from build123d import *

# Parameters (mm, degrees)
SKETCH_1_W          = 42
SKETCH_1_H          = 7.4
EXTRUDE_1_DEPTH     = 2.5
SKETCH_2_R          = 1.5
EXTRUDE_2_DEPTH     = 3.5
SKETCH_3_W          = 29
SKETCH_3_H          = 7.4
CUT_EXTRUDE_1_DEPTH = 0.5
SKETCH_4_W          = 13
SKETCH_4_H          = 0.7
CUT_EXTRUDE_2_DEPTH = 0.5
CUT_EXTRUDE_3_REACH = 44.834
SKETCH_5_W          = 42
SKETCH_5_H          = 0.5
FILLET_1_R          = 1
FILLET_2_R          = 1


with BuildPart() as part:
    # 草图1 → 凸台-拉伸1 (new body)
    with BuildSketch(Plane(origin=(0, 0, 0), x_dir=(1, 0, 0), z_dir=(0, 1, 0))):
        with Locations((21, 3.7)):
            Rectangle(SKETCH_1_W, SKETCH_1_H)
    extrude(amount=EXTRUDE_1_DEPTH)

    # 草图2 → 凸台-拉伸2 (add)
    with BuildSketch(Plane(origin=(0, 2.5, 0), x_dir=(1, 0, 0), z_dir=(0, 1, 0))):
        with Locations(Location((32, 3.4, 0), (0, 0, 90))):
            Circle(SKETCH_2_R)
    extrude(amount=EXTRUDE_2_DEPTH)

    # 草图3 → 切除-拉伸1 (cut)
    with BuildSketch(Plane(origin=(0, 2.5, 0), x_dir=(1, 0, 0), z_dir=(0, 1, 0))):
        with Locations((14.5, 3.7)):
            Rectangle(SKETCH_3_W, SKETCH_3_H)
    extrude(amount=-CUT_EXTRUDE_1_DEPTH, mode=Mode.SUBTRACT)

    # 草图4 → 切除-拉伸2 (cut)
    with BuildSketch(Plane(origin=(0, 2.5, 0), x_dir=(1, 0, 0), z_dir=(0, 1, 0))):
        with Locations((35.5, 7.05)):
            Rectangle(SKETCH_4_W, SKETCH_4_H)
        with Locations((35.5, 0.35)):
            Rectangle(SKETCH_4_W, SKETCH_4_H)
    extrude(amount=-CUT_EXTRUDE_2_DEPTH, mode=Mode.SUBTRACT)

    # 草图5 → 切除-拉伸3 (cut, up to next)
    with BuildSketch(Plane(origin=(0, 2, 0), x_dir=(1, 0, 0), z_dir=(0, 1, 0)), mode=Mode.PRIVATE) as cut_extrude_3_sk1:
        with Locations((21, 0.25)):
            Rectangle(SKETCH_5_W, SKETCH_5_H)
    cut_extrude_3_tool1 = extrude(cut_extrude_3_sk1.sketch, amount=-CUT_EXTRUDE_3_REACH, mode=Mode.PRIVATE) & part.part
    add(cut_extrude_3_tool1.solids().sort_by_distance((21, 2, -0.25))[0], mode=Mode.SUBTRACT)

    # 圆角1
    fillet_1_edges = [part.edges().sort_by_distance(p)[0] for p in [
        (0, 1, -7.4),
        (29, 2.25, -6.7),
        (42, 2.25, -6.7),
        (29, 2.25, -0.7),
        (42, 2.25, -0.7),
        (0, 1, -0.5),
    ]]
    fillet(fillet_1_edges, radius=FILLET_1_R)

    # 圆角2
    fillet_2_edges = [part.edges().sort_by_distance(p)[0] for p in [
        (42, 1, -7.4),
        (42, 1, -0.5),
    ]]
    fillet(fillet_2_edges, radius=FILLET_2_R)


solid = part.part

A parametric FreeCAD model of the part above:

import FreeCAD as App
import Part
import Sketcher
from FreeCAD import Vector


def edges_at(feature, points):
    """Names of the edges that pass closest to the given points."""
    edges = feature.Shape.Edges
    near = lambda p: min(range(len(edges)), key=lambda i: edges[i].distToShape(Part.Vertex(*p))[0])
    return sorted({f"Edge{near(p) + 1}" for p in points})

doc = App.newDocument("Part")
body = doc.addObject("PartDesign::Body", "Body")

# Sketch on XZ plane
sketch1 = doc.addObject("Sketcher::SketchObject", "Sketch")
body.addObject(sketch1)
sketch1.AttachmentSupport = (doc.XZ_Plane, [""])
sketch1.MapMode = "FlatFace"
sketch1.addGeometry([
    Part.LineSegment(Vector(0, -7, 0), Vector(0, 0, 0)),
    Part.LineSegment(Vector(0, 0, 0), Vector(42, 0, 0)),
    Part.LineSegment(Vector(42, 0, 0), Vector(42, -7, 0)),
    Part.LineSegment(Vector(42, -7, 0), Vector(0, -7, 0)),
], False)
sketch1.addConstraint([
    Sketcher.Constraint("Coincident", 0, 2, 1, 1),
    Sketcher.Constraint("Coincident", 1, 2, 2, 1),
    Sketcher.Constraint("Coincident", 2, 2, 3, 1),
    Sketcher.Constraint("Coincident", 3, 2, 0, 1),
    Sketcher.Constraint("Vertical", 0),
    Sketcher.Constraint("Horizontal", 1),
    Sketcher.Constraint("Vertical", 2),
    Sketcher.Constraint("Horizontal", 3),
    Sketcher.Constraint("Coincident", 0, 2, -1, 1),
    Sketcher.Constraint("DistanceX", 1, 1, 1, 2, 42.0),
    Sketcher.Constraint("DistanceY", 0, 1, 0, 2, 7.4),
])
pad1 = doc.addObject("PartDesign::Pad", "Pad")
body.addObject(pad1)
pad1.Profile = sketch1
pad1.Length = 2.5
pad1.Reversed = True

# Sketch on XZ plane
sketch2 = doc.addObject("Sketcher::SketchObject", "Sketch001")
body.addObject(sketch2)
sketch2.AttachmentSupport = (doc.XZ_Plane, [""])
sketch2.MapMode = "FlatFace"
sketch2.AttachmentOffset = App.Placement(Vector(0, 0, -2.5), App.Rotation())
sketch2.addGeometry(Part.Circle(Vector(32, -3.4, 0), Vector(0, 0, 1), 1.5), False)
sketch2.addConstraint([
    Sketcher.Constraint("Diameter", 0, 3.0),
    Sketcher.Constraint("DistanceX", -1, 1, 0, 3, 32.0),
    Sketcher.Constraint("DistanceY", 0, 3, -1, 1, 3.4),
])
pad2 = doc.addObject("PartDesign::Pad", "Pad001")
body.addObject(pad2)
pad2.Profile = sketch2
pad2.Length = 3.5
pad2.Reversed = True

# Sketch on XZ plane
sketch3 = doc.addObject("Sketcher::SketchObject", "Sketch002")
body.addObject(sketch3)
sketch3.AttachmentSupport = (doc.XZ_Plane, [""])
sketch3.MapMode = "FlatFace"
sketch3.AttachmentOffset = App.Placement(Vector(0, 0, -2.5), App.Rotation())
sketch3.addGeometry([
    Part.LineSegment(Vector(0, -7, 0), Vector(0, 0, 0)),
    Part.LineSegment(Vector(0, 0, 0), Vector(29, 0, 0)),
    Part.LineSegment(Vector(29, 0, 0), Vector(29, -7, 0)),
    Part.LineSegment(Vector(29, -7, 0), Vector(0, -7, 0)),
], False)
sketch3.addConstraint([
    Sketcher.Constraint("Coincident", 0, 2, 1, 1),
    Sketcher.Constraint("Coincident", 1, 2, 2, 1),
    Sketcher.Constraint("Coincident", 2, 2, 3, 1),
    Sketcher.Constraint("Coincident", 3, 2, 0, 1),
    Sketcher.Constraint("Vertical", 0),
    Sketcher.Constraint("Horizontal", 1),
    Sketcher.Constraint("Vertical", 2),
    Sketcher.Constraint("Horizontal", 3),
    Sketcher.Constraint("Coincident", 0, 2, -1, 1),
    Sketcher.Constraint("DistanceX", 1, 1, 1, 2, 29.0),
    Sketcher.Constraint("DistanceY", 0, 1, 0, 2, 7.4),
])
pocket1 = doc.addObject("PartDesign::Pocket", "Pocket")
body.addObject(pocket1)
pocket1.Profile = sketch3
pocket1.Length = 0.5
pocket1.Reversed = True

# Sketch on XZ plane
sketch4 = doc.addObject("Sketcher::SketchObject", "Sketch003")
body.addObject(sketch4)
sketch4.AttachmentSupport = (doc.XZ_Plane, [""])
sketch4.MapMode = "FlatFace"
sketch4.AttachmentOffset = App.Placement(Vector(0, 0, -2.5), App.Rotation())
sketch4.addGeometry([
    Part.LineSegment(Vector(29, -7.4, 0), Vector(29, -6.7, 0)),  # 0
    Part.LineSegment(Vector(29, -6.7, 0), Vector(42, -6.7, 0)),  # 1
    Part.LineSegment(Vector(42, -6.7, 0), Vector(42, -7.4, 0)),  # 2
    Part.LineSegment(Vector(42, -7.4, 0), Vector(29, -7.4, 0)),  # 3
    Part.LineSegment(Vector(29, -0.7, 0), Vector(29, 0, 0)),  # 4
    Part.LineSegment(Vector(29, 0, 0), Vector(42, 0, 0)),  # 5
    Part.LineSegment(Vector(42, 0, 0), Vector(42, -0.7, 0)),  # 6
    Part.LineSegment(Vector(42, -0.7, 0), Vector(29, -0.7, 0)),  # 7
], False)
sketch4.addConstraint([
    Sketcher.Constraint("Coincident", 0, 2, 1, 1),
    Sketcher.Constraint("Coincident", 1, 2, 2, 1),
    Sketcher.Constraint("Coincident", 2, 2, 3, 1),
    Sketcher.Constraint("Coincident", 3, 2, 0, 1),
    Sketcher.Constraint("Coincident", 4, 2, 5, 1),
    Sketcher.Constraint("Coincident", 5, 2, 6, 1),
    Sketcher.Constraint("Coincident", 6, 2, 7, 1),
    Sketcher.Constraint("Coincident", 7, 2, 4, 1),
    Sketcher.Constraint("Vertical", 0),
    Sketcher.Constraint("Horizontal", 1),
    Sketcher.Constraint("Vertical", 2),
    Sketcher.Constraint("Horizontal", 3),
    Sketcher.Constraint("Vertical", 4),
    Sketcher.Constraint("Horizontal", 5),
    Sketcher.Constraint("Vertical", 6),
    Sketcher.Constraint("Horizontal", 7),
    Sketcher.Constraint("PointOnObject", 4, 2, -1),
    Sketcher.Constraint("Vertical", 3, 2, 4, 2),
    Sketcher.Constraint("Vertical", 2, 2, 5, 2),
    Sketcher.Constraint("Equal", 2, 4),
    Sketcher.Constraint("DistanceX", 1, 1, 1, 2, 13.0),
    Sketcher.Constraint("DistanceY", 0, 1, 0, 2, 0.7),
    Sketcher.Constraint("DistanceX", -1, 1, 0, 2, 29.0),
    Sketcher.Constraint("DistanceY", 1, 2, 6, 2, 6.0),
])
pocket2 = doc.addObject("PartDesign::Pocket", "Pocket001")
body.addObject(pocket2)
pocket2.Profile = sketch4
pocket2.Length = 0.5
pocket2.Reversed = True

# Sketch on XZ plane
sketch5 = doc.addObject("Sketcher::SketchObject", "Sketch004")
body.addObject(sketch5)
sketch5.AttachmentSupport = (doc.XZ_Plane, [""])
sketch5.MapMode = "FlatFace"
sketch5.AttachmentOffset = App.Placement(Vector(0, 0, -2), App.Rotation())
sketch5.addGeometry([
    Part.LineSegment(Vector(0, -0.5, 0), Vector(0, 0, 0)),
    Part.LineSegment(Vector(0, 0, 0), Vector(42, 0, 0)),
    Part.LineSegment(Vector(42, 0, 0), Vector(42, -0.5, 0)),
    Part.LineSegment(Vector(42, -0.5, 0), Vector(0, -0.5, 0)),
], False)
sketch5.addConstraint([
    Sketcher.Constraint("Coincident", 0, 2, 1, 1),
    Sketcher.Constraint("Coincident", 1, 2, 2, 1),
    Sketcher.Constraint("Coincident", 2, 2, 3, 1),
    Sketcher.Constraint("Coincident", 3, 2, 0, 1),
    Sketcher.Constraint("Vertical", 0),
    Sketcher.Constraint("Horizontal", 1),
    Sketcher.Constraint("Vertical", 2),
    Sketcher.Constraint("Horizontal", 3),
    Sketcher.Constraint("Coincident", 0, 2, -1, 1),
    Sketcher.Constraint("DistanceX", 1, 1, 1, 2, 42.0),
    Sketcher.Constraint("DistanceY", 0, 1, 0, 2, 0.5),
])
pocket3 = doc.addObject("PartDesign::Pocket", "Pocket002")
body.addObject(pocket3)
pocket3.Profile = sketch5
pocket3.Type = "UpToFirst"
pocket3.Reversed = True
doc.recompute()

fillet = doc.addObject("PartDesign::Fillet", "Fillet")
body.addObject(fillet)
fillet.Base = (pocket3, edges_at(pocket3, [
    (0, 1, -7.4),
    (29, 2.25, -6.7),
    (42, 2.25, -6.7),
    (29, 2.25, -0.7),
    (42, 2.25, -0.7),
    (0, 1, -0.5),
]))
fillet.Radius = 1
doc.recompute()

fillet2 = doc.addObject("PartDesign::Fillet", "Fillet001")
body.addObject(fillet2)
fillet2.Base = (fillet, edges_at(fillet, [(42, 1, -7.4), (42, 1, -0.5)]))
fillet2.Radius = 1

doc.recompute()
